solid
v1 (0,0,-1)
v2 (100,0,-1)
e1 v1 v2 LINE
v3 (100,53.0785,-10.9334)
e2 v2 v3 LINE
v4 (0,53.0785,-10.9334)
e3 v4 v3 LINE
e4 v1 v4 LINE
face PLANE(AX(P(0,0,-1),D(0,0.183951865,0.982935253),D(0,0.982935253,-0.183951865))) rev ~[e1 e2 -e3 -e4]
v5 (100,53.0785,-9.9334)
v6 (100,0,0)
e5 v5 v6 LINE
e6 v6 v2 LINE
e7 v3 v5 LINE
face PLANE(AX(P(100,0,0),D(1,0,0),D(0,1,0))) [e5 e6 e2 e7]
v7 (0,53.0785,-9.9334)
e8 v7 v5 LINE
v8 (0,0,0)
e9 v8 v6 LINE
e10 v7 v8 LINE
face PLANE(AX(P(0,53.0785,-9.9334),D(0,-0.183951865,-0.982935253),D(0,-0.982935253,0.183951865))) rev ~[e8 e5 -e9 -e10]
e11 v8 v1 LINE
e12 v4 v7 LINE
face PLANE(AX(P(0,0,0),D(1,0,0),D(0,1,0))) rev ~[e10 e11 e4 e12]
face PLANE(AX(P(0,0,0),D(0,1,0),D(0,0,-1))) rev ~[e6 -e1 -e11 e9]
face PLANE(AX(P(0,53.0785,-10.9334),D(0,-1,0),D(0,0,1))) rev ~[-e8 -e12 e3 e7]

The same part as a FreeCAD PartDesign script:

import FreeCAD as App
import Part
import Sketcher
Q = App.Units.Quantity

doc = App.newDocument("Part")
body = doc.addObject("PartDesign::Body", "Body")

sketch1 = body.newObject("Sketcher::SketchObject", "Sketch")
sketch1.AttachmentSupport = (doc.getObject("YZ_Plane"), [""])
sketch1.MapMode = "FlatFace"
sketch1.addGeometry(Part.LineSegment(App.Vector(53.1, -9.9, 0), App.Vector(0, 0, 0)), False)
sketch1.addGeometry(Part.LineSegment(App.Vector(0, 0, 0), App.Vector(0, -1, 0)), False)
sketch1.addGeometry(Part.LineSegment(App.Vector(0, -1, 0), App.Vector(53.1, -10.9, 0)), False)
sketch1.addGeometry(Part.LineSegment(App.Vector(53.1, -10.9, 0), App.Vector(53.1, -9.9, 0)), False)
sketch1.addConstraint(Sketcher.Constraint("Coincident", 0, 2, 1, 1))
sketch1.addConstraint(Sketcher.Constraint("Coincident", 1, 2, 2, 1))
sketch1.addConstraint(Sketcher.Constraint("Coincident", 2, 2, 3, 1))
sketch1.addConstraint(Sketcher.Constraint("Coincident", 3, 2, 0, 1))
sketch1.addConstraint(Sketcher.Constraint("Vertical", 1))
sketch1.addConstraint(Sketcher.Constraint("Vertical", 3))
sketch1.addConstraint(Sketcher.Constraint("Coincident", 0, 2, -1, 1))
sketch1.addConstraint(Sketcher.Constraint("Parallel", 0, 2))
sketch1.addConstraint(Sketcher.Constraint("DistanceY", 1, 2, 1, 1, Q("1 mm")))
sketch1.addConstraint(Sketcher.Constraint("Distance", 0, Q("54 mm")))
sketch1.addConstraint(Sketcher.Constraint("Angle", 2, Q("-10.6 deg")))
pad1 = body.newObject("PartDesign::Pad", "Pad")
pad1.Profile = sketch1
pad1.Length = 100

doc.recompute()
